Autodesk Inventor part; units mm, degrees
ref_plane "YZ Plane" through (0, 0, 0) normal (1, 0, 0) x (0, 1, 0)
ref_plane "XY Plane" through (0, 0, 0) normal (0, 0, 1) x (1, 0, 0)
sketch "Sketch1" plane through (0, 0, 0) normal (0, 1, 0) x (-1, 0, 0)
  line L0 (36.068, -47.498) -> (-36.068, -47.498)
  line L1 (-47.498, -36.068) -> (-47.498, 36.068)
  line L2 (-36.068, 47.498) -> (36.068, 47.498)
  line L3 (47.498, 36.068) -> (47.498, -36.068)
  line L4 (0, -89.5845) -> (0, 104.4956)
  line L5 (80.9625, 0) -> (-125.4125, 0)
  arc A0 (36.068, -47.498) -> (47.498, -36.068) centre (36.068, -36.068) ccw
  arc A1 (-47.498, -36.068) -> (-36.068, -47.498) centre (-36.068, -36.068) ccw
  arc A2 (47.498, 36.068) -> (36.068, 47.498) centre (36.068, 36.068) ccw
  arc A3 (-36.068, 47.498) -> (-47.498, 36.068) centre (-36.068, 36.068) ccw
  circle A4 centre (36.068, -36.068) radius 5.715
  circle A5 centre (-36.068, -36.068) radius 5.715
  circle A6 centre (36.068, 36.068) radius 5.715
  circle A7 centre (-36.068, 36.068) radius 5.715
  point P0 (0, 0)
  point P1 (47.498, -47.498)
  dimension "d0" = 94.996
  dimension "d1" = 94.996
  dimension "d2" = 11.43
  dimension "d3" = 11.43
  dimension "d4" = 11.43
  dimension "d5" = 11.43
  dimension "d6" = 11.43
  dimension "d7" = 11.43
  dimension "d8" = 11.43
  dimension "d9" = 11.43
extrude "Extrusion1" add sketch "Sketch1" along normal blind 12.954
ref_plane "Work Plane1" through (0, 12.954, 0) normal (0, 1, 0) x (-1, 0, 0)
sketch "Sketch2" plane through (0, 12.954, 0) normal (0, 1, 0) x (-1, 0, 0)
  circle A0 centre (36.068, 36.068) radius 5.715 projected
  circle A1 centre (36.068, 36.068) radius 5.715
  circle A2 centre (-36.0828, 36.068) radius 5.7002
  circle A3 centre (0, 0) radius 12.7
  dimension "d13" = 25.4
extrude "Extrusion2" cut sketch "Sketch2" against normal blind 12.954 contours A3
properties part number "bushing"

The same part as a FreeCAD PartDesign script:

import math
import FreeCAD as App
import Part
import Sketcher

V = App.Vector
Q = App.Units.Quantity

doc = App.newDocument("Part")
params = doc.addObject("Spreadsheet::Sheet", "Params")
for row, (alias, value) in enumerate([
    ("sketch1_diameter", "0.45 in"),
    ("sketch1_radius", "0.45 in"),
    ("sketch1_width", "2.84 in"),
    ("pad1_length", "0.51 in"),
    ("sketch2_diameter", "1 in"),
    ("pocket1_length", "0.51 in"),
], start=1):
    params.set(f"A{row}", alias)
    params.set(f"B{row}", "=" + value)
    params.setAlias(f"B{row}", alias)

body = doc.addObject("PartDesign::Body", "Body")

# Sketch on XZ plane
sketch1 = body.newObject("Sketcher::SketchObject", "Sketch")
sketch1.AttachmentSupport = (doc.getObject("XZ_Plane"), [""])
sketch1.MapMode = "FlatFace"
sketch1.addGeometry(Part.ArcOfCircle(Part.Circle(V(-36, -36, 0), V(0, 0, 1), 11), math.radians(180), math.radians(270)), False)
sketch1.addGeometry(Part.LineSegment(V(-47, -36, 0), V(-47, 36, 0)), False)
sketch1.addGeometry(Part.ArcOfCircle(Part.Circle(V(-36, 36, 0), V(0, 0, 1), 11), math.radians(90), math.radians(180)), False)
sketch1.addGeometry(Part.LineSegment(V(-36, 47, 0), V(36, 47, 0)), False)
sketch1.addGeometry(Part.ArcOfCircle(Part.Circle(V(36, 36, 0), V(0, 0, 1), 11), math.radians(0), math.radians(90)), False)
sketch1.addGeometry(Part.LineSegment(V(47, 36, 0), V(47, -36, 0)), False)
sketch1.addGeometry(Part.ArcOfCircle(Part.Circle(V(36, -36, 0), V(0, 0, 1), 11), math.radians(-90), math.radians(0)), False)
sketch1.addGeometry(Part.LineSegment(V(36, -47, 0), V(-36, -47, 0)), False)
sketch1.addGeometry(Part.Circle(V(-36, -36, 0), V(0, 0, 1), 6), False)
sketch1.addGeometry(Part.Circle(V(36, -36, 0), V(0, 0, 1), 6), False)
sketch1.addGeometry(Part.Circle(V(-36, 36, 0), V(0, 0, 1), 6), False)
sketch1.addGeometry(Part.Circle(V(36, 36, 0), V(0, 0, 1), 6), False)
sketch1.addConstraint(Sketcher.Constraint("Tangent", 0, 1, 1, 1))
sketch1.addConstraint(Sketcher.Constraint("Tangent", 1, 2, 2, 2))
sketch1.addConstraint(Sketcher.Constraint("Tangent", 2, 1, 3, 1))
sketch1.addConstraint(Sketcher.Constraint("Tangent", 3, 2, 4, 2))
sketch1.addConstraint(Sketcher.Constraint("Tangent", 4, 1, 5, 1))
sketch1.addConstraint(Sketcher.Constraint("Tangent", 5, 2, 6, 2))
sketch1.addConstraint(Sketcher.Constraint("Tangent", 6, 1, 7, 1))
sketch1.addConstraint(Sketcher.Constraint("Tangent", 7, 2, 0, 2))
sketch1.addConstraint(Sketcher.Constraint("Vertical", 1))
sketch1.addConstraint(Sketcher.Constraint("Horizontal", 3))
sketch1.addConstraint(Sketcher.Constraint("Vertical", 5))
sketch1.addConstraint(Sketcher.Constraint("Horizontal", 7))
sketch1.addConstraint(Sketcher.Constraint("Coincident", 8, 3, 0, 3))
sketch1.addConstraint(Sketcher.Constraint("Coincident", 9, 3, 6, 3))
sketch1.addConstraint(Sketcher.Constraint("Coincident", 10, 3, 2, 3))
sketch1.addConstraint(Sketcher.Constraint("Coincident", 11, 3, 4, 3))
sketch1.addConstraint(Sketcher.Constraint("Equal", 0, 2))
sketch1.addConstraint(Sketcher.Constraint("Equal", 2, 4))
sketch1.addConstraint(Sketcher.Constraint("Equal", 4, 6))
sketch1.addConstraint(Sketcher.Constraint("Equal", 8, 9))
sketch1.addConstraint(Sketcher.Constraint("Equal", 9, 10))
sketch1.addConstraint(Sketcher.Constraint("Equal", 10, 11))
sketch1.addConstraint(Sketcher.Constraint("Symmetric", 0, 3, 4, 3, -1, 1))
sketch1.addConstraint(Sketcher.Constraint("Equal", 7, 1))
sketch1.addConstraint(Sketcher.Constraint("Diameter", 8, Q("0.45 in")))
sketch1.addConstraint(Sketcher.Constraint("Radius", 0, Q("0.45 in")))
sketch1.addConstraint(Sketcher.Constraint("DistanceX", 3, 1, 3, 2, Q("2.84 in")))
sketch1.setExpression("Constraints[24]", "Params.sketch1_diameter")
sketch1.setExpression("Constraints[25]", "Params.sketch1_radius")
sketch1.setExpression("Constraints[26]", "Params.sketch1_width")
pad1 = body.newObject("PartDesign::Pad", "Pad")
pad1.Profile = sketch1
pad1.setExpression("Length", "Params.pad1_length")
pad1.Reversed = True

# Sketch on XZ plane
sketch2 = body.newObject("Sketcher::SketchObject", "Sketch001")
sketch2.AttachmentSupport = (doc.getObject("XZ_Plane"), [""])
sketch2.MapMode = "FlatFace"
sketch2.AttachmentOffset = App.Placement(V(0, 0, -0.51 * 25.4), App.Rotation())
sketch2.addGeometry(Part.Circle(V(0, 0, 0), V(0, 0, 1), 13), False)
sketch2.addConstraint(Sketcher.Constraint("Coincident", 0, 3, -1, 1))
sketch2.addConstraint(Sketcher.Constraint("Diameter", 0, Q("1 in")))
sketch2.setExpression("Constraints[1]", "Params.sketch2_diameter")
pocket1 = body.newObject("PartDesign::Pocket", "Pocket")
pocket1.Profile = sketch2
pocket1.setExpression("Length", "Params.pocket1_length")
pocket1.Reversed = True

doc.recompute()
